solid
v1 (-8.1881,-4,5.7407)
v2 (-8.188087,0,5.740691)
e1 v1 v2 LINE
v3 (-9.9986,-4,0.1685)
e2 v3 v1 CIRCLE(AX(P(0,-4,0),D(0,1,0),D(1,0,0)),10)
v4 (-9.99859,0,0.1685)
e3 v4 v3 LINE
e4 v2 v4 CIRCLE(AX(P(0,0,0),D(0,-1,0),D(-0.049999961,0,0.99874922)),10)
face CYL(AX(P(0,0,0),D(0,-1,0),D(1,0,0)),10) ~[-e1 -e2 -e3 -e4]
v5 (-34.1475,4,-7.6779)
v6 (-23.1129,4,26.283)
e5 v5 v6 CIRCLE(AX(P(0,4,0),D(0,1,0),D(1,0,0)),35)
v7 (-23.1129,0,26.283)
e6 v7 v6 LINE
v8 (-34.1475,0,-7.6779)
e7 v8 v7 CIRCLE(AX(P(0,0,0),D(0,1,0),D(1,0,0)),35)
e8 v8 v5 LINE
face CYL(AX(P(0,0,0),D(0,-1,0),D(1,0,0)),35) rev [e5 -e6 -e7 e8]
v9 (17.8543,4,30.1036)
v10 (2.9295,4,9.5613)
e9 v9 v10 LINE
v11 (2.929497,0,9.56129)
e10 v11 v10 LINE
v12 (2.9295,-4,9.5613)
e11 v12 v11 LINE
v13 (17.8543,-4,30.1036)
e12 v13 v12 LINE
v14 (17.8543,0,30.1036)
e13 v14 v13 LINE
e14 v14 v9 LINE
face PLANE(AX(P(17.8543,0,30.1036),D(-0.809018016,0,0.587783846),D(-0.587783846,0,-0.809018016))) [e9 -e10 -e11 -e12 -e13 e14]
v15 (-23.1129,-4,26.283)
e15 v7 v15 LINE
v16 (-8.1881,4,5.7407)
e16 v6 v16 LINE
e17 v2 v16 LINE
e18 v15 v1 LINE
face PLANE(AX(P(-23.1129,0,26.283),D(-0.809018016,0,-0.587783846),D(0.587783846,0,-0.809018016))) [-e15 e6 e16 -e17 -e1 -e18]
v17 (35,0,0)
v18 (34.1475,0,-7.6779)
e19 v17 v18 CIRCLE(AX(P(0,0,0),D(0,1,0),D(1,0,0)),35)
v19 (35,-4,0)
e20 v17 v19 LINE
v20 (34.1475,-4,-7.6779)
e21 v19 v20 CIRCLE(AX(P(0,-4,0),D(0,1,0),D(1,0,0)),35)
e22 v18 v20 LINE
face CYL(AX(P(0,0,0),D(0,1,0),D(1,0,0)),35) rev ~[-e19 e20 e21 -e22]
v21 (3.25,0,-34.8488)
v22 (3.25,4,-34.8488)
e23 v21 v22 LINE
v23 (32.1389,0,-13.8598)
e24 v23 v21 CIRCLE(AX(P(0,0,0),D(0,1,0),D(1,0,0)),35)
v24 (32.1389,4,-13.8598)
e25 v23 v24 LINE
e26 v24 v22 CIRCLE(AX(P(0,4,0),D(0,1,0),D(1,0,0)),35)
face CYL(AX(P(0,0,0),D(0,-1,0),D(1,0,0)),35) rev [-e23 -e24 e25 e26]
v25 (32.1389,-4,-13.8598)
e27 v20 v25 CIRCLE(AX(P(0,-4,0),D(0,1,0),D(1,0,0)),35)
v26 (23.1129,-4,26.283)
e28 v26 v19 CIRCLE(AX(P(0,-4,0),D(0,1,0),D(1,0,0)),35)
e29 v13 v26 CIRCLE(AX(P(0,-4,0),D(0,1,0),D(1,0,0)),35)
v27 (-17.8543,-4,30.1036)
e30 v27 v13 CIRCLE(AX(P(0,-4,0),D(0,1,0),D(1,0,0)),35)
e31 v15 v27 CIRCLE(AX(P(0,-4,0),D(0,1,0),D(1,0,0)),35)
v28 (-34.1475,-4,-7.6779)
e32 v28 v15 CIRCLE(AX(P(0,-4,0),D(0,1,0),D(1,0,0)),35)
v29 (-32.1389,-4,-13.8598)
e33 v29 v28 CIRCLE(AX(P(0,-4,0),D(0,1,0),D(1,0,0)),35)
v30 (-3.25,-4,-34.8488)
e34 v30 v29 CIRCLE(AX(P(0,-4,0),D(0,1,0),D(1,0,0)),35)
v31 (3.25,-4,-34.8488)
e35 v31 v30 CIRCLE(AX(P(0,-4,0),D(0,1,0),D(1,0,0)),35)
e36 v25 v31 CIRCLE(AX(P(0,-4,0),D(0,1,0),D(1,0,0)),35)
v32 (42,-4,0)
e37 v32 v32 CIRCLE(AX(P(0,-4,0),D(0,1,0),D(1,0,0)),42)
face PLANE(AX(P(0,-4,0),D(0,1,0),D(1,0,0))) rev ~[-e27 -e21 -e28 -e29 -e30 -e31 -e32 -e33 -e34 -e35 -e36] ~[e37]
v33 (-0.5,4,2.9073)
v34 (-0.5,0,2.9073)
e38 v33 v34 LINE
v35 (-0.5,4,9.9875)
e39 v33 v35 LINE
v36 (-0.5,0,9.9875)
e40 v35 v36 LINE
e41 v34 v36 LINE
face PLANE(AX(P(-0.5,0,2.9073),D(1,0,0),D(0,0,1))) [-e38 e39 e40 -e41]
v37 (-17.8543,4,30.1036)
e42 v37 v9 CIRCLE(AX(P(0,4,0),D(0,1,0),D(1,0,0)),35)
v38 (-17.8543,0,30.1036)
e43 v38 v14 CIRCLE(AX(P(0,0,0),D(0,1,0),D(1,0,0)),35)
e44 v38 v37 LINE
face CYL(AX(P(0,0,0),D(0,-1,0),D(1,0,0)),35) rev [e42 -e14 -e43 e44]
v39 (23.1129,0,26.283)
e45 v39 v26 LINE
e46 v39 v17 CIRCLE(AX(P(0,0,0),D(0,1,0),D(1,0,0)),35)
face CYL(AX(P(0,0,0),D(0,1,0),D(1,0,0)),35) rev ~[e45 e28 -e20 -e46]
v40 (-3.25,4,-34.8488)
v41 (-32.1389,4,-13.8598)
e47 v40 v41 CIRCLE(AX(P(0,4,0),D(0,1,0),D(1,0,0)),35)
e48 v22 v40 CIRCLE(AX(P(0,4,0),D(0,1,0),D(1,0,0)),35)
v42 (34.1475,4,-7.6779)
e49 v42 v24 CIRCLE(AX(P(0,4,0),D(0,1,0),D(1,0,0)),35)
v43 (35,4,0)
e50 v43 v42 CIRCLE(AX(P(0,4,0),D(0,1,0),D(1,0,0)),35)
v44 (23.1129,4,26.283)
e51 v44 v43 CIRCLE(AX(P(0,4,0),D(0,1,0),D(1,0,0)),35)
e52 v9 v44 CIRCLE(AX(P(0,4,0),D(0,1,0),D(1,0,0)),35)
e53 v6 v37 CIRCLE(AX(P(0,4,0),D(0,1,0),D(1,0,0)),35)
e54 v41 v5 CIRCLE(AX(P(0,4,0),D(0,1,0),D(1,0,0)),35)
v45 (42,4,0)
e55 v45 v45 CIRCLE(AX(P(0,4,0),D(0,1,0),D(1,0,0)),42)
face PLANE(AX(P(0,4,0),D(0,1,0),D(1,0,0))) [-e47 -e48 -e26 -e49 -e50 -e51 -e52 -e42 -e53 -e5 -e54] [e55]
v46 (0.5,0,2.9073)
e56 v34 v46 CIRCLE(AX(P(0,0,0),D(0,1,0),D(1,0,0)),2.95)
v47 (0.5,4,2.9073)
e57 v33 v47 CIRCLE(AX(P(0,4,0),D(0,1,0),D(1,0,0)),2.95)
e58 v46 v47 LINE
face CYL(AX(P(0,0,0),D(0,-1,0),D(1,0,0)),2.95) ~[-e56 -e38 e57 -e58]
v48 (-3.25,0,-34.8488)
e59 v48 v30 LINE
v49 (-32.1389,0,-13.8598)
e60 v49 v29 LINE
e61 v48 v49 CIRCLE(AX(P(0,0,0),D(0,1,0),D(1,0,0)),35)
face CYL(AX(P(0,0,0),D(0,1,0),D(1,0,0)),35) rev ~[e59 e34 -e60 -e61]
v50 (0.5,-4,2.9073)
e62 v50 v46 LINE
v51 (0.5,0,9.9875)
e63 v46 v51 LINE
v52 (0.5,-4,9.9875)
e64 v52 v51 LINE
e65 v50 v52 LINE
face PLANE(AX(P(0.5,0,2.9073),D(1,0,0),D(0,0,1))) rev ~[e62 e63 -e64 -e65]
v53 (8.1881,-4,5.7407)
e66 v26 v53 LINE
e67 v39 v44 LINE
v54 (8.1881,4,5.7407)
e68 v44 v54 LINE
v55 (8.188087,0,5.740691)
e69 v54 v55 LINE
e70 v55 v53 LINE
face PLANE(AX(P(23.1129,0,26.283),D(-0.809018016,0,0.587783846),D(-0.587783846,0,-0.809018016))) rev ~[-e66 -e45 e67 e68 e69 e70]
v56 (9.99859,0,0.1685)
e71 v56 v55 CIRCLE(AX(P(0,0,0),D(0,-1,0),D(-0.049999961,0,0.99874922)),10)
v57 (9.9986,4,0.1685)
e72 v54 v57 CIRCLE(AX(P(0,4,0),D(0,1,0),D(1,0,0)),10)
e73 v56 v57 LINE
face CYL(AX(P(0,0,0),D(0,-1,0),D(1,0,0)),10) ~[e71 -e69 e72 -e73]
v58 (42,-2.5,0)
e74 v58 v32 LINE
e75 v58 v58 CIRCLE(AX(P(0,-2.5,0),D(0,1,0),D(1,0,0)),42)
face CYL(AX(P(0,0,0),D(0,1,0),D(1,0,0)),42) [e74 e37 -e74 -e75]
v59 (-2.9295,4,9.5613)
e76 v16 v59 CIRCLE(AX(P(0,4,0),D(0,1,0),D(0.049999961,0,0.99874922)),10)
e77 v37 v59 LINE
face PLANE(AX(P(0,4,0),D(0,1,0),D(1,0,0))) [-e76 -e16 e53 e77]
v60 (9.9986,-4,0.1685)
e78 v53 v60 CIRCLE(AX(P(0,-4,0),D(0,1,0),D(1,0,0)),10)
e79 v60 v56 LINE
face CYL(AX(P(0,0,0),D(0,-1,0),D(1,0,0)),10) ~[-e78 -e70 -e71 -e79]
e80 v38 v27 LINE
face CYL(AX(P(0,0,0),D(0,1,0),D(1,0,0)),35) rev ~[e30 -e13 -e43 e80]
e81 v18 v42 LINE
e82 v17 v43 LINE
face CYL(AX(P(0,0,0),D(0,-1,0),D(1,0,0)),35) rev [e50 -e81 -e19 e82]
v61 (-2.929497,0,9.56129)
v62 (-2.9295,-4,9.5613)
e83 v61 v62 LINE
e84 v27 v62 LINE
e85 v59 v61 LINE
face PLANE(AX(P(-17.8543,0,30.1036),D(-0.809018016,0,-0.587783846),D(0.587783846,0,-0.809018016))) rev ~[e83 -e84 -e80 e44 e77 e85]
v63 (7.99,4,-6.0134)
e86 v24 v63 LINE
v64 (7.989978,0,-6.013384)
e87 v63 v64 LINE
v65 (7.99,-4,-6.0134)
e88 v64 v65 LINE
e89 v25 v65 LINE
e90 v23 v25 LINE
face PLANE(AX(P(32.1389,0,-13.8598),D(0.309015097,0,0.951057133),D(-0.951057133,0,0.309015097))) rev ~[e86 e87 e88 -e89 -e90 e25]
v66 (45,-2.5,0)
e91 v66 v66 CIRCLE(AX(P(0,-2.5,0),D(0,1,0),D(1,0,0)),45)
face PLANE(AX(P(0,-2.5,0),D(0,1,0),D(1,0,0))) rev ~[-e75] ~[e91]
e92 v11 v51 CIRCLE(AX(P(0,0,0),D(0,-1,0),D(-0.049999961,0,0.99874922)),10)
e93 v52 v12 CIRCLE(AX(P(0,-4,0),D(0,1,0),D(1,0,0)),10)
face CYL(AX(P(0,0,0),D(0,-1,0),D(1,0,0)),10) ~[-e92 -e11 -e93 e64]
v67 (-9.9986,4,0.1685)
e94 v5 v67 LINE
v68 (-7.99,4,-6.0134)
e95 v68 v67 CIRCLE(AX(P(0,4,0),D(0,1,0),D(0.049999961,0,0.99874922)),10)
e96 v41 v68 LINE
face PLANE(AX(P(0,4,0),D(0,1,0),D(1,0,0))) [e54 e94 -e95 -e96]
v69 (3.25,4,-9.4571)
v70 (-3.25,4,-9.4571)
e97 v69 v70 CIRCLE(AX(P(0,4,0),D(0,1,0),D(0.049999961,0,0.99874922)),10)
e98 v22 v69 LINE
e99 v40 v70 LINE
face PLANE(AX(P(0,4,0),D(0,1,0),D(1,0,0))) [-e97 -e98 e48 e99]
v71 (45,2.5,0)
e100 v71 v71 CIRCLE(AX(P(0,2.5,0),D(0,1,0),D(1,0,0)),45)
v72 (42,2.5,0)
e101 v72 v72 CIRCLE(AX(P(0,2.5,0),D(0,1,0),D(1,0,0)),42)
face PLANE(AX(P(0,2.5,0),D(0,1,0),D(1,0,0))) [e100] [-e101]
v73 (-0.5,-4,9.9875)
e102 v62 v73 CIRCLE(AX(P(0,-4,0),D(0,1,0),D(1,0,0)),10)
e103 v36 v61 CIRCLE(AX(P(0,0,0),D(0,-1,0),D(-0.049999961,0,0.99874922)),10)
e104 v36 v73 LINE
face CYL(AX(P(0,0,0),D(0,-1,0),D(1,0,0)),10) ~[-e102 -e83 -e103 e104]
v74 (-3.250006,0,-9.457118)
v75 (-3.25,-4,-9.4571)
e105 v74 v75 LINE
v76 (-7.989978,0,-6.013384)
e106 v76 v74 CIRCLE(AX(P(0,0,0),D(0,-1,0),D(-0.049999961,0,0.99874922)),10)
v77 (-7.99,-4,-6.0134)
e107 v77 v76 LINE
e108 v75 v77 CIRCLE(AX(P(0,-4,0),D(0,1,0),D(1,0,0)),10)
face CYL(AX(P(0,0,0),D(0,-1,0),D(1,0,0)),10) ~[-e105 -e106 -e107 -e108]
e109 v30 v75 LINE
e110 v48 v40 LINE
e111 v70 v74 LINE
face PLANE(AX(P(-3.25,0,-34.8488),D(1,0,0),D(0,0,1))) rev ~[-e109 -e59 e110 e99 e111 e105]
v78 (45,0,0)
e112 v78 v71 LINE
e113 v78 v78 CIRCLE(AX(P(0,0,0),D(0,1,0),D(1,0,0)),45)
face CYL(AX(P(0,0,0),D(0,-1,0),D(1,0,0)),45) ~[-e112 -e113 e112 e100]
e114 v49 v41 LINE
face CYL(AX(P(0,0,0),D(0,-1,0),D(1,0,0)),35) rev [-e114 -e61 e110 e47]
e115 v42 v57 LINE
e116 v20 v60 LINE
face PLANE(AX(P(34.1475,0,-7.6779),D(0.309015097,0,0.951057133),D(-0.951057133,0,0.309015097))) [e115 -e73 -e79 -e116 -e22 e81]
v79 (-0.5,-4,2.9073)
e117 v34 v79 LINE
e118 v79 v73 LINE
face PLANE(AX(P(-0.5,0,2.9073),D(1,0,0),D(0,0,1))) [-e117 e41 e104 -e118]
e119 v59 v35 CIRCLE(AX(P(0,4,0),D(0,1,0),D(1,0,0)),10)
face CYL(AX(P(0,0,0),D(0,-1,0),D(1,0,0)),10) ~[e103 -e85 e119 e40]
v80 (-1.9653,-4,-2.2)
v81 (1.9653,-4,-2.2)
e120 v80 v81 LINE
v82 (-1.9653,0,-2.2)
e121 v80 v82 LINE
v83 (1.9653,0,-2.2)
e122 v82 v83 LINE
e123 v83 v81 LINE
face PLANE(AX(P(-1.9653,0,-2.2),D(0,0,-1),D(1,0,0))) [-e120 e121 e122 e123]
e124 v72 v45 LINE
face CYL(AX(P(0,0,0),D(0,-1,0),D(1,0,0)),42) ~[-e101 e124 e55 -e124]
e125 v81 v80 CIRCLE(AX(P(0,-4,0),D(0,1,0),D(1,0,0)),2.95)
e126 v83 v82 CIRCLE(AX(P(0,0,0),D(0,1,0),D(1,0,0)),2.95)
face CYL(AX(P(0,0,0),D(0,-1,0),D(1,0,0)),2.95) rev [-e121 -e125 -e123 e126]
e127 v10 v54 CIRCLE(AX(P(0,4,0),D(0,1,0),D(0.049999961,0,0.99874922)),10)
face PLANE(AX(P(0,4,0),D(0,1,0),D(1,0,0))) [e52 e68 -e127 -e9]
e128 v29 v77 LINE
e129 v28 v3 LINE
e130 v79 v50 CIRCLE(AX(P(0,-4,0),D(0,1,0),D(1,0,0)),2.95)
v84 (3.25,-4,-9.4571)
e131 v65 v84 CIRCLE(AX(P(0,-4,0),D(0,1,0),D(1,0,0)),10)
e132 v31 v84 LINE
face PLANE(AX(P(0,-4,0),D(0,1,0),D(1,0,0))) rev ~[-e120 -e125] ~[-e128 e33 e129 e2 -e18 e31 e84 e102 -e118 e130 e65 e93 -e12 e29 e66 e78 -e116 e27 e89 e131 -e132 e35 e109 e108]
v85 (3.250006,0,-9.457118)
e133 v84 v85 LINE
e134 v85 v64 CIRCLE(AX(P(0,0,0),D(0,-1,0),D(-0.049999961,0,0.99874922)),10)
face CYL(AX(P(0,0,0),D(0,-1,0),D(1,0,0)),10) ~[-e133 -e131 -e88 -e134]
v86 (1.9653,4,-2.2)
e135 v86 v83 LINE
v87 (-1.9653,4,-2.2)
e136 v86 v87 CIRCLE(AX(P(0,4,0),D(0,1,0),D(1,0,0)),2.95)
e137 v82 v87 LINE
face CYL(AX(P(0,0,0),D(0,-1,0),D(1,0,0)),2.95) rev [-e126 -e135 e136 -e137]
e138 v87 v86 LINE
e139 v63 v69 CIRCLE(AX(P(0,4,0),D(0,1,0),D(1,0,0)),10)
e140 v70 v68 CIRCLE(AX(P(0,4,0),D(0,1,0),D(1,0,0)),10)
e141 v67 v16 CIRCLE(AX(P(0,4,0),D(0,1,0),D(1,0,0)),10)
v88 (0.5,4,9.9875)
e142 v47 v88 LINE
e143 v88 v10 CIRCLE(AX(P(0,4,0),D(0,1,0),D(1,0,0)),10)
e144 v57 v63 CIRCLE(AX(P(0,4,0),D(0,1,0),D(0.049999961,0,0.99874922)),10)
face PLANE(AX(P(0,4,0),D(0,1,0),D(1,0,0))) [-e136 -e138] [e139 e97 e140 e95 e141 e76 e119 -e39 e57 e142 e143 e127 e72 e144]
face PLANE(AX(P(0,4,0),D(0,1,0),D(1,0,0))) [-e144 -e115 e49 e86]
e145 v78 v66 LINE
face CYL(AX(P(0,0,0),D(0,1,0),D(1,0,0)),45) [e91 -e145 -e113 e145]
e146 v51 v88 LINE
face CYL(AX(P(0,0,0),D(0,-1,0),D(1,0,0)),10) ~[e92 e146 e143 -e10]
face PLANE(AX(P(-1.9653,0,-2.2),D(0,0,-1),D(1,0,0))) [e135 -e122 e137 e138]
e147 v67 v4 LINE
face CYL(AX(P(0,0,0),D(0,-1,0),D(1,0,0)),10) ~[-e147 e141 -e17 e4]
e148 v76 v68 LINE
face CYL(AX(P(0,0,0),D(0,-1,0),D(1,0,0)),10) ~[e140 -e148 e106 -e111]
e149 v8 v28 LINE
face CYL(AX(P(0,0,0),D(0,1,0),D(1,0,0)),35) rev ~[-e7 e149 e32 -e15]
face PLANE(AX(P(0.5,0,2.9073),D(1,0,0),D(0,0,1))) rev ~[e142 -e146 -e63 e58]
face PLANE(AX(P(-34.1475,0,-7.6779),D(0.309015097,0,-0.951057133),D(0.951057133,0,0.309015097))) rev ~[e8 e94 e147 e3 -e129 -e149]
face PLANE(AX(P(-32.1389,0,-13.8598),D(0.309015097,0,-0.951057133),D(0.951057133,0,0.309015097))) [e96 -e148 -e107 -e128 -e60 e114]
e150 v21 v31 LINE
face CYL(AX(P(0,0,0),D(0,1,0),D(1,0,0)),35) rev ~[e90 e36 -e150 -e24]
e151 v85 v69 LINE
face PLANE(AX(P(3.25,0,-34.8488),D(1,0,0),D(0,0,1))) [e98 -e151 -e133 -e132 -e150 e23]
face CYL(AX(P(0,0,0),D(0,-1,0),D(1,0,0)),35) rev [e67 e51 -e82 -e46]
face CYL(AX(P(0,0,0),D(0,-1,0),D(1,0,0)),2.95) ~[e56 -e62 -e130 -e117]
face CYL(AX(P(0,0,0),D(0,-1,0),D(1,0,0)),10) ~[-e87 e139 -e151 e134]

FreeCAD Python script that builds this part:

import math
import FreeCAD as App
import Part
import Sketcher

V = App.Vector
Q = App.Units.Quantity

doc = App.newDocument("Part")
body = doc.addObject("PartDesign::Body", "Body")

# Sketch on XZ plane
sketch1 = body.newObject("Sketcher::SketchObject", "Sketch")
sketch1.AttachmentSupport = (doc.getObject("XZ_Plane"), [""])
sketch1.MapMode = "FlatFace"
sketch1.addGeometry([
    Part.Circle(V(0, 0, 0), V(0, 0, 1), 45),
    Part.Circle(V(0, 0, 0), V(0, 0, 1), 42),
], False)
sketch1.addConstraint([
    Sketcher.Constraint("Coincident", 0, 3, -1, 1),
    Sketcher.Constraint("Coincident", 1, 3, -1, 1),
    Sketcher.Constraint("Diameter", 0, Q("90 mm")),
    Sketcher.Constraint("Diameter", 1, Q("84 mm")),
])
pad1 = body.newObject("PartDesign::Pad", "Pad")
pad1.Profile = sketch1
pad1.Length = 5
pad1.Midplane = True

# Sketch on XZ plane
sketch2 = body.newObject("Sketcher::SketchObject", "Sketch001")
sketch2.AttachmentSupport = (doc.getObject("XZ_Plane"), [""])
sketch2.MapMode = "FlatFace"
sketch2.addGeometry([
    Part.Circle(V(0, 0, 0), V(0, 0, 1), 42),
    Part.Circle(V(0, 0, 0), V(0, 0, 1), 35),
], False)
sketch2.addConstraint([
    Sketcher.Constraint("Coincident", 0, 3, -1, 1),
    Sketcher.Constraint("Coincident", 1, 3, -1, 1),
    Sketcher.Constraint("Diameter", 0, Q("84 mm")),
    Sketcher.Constraint("Diameter", 1, Q("70 mm")),
])
pad2 = body.newObject("PartDesign::Pad", "Pad001")
pad2.Profile = sketch2
pad2.Length = 8
pad2.Midplane = True

# Sketch on XZ plane
sketch3 = body.newObject("Sketcher::SketchObject", "Sketch002")
sketch3.AttachmentSupport = (doc.getObject("XZ_Plane"), [""])
sketch3.MapMode = "FlatFace"
sketch3.addGeometry([
    Part.ArcOfCircle(Part.Circle(V(0, 0, 0), V(0, 0, 1), 3), math.radians(80.24), math.radians(99.76)),  # 0
    Part.LineSegment(V(0.5, 2.9, 0), V(0.5, 10, 0)),  # 1
    Part.ArcOfCircle(Part.Circle(V(0, 0, 0), V(0, 0, 1), 10), math.radians(72.97), math.radians(87.13)),  # 2
    Part.LineSegment(V(2.9, 9.6, 0), V(17.9, 30.1, 0)),  # 3
    Part.ArcOfCircle(Part.Circle(V(0, 0, 0), V(0, 0, 1), 35), math.radians(48.67), math.radians(59.33)),  # 4
    Part.LineSegment(V(23.1, 26.3, 0), V(8.2, 5.7, 0)),  # 5
    Part.ArcOfCircle(Part.Circle(V(0, 0, 0), V(0, 0, 1), 10), math.radians(1), math.radians(35)),  # 6
    Part.LineSegment(V(10, 0.2, 0), V(34.1, -7.7, 0)),  # 7
    Part.ArcOfCircle(Part.Circle(V(0, 0, 0), V(0, 0, 1), 35), math.radians(-23.33), math.radians(-12.67)),  # 8
    Part.LineSegment(V(32.1, -13.9, 0), V(8, -6, 0)),  # 9
    Part.ArcOfCircle(Part.Circle(V(0, 0, 0), V(0, 0, 1), 10), math.radians(-71), math.radians(-37)),  # 10
    Part.LineSegment(V(3.2, -9.5, 0), V(3.2, -34.8, 0)),  # 11
    Part.ArcOfCircle(Part.Circle(V(0, 0, 0), V(0, 0, 1), 35), math.radians(-95.33), math.radians(-84.67)),  # 12
    Part.LineSegment(V(-3.2, -34.8, 0), V(-3.2, -9.5, 0)),  # 13
    Part.ArcOfCircle(Part.Circle(V(0, 0, 0), V(0, 0, 1), 10), math.radians(-143), math.radians(-109)),  # 14
    Part.LineSegment(V(-8, -6, 0), V(-32.1, -13.9, 0)),  # 15
    Part.ArcOfCircle(Part.Circle(V(0, 0, 0), V(0, 0, 1), 35), math.radians(-167.33), math.radians(-156.67)),  # 16
    Part.LineSegment(V(-34.1, -7.7, 0), V(-10, 0.2, 0)),  # 17
    Part.ArcOfCircle(Part.Circle(V(0, 0, 0), V(0, 0, 1), 10), math.radians(145), math.radians(179)),  # 18
    Part.LineSegment(V(-8.2, 5.7, 0), V(-23.1, 26.3, 0)),  # 19
    Part.ArcOfCircle(Part.Circle(V(0, 0, 0), V(0, 0, 1), 35), math.radians(120.67), math.radians(131.33)),  # 20
    Part.LineSegment(V(-17.9, 30.1, 0), V(-2.9, 9.6, 0)),  # 21
    Part.ArcOfCircle(Part.Circle(V(0, 0, 0), V(0, 0, 1), 10), math.radians(92.87), math.radians(107.03)),  # 22
    Part.LineSegment(V(-0.5, 10, 0), V(-0.5, 2.9, 0)),  # 23
    Part.LineSegment(V(2, -2.2, 0), V(-2, -2.2, 0)),  # 24
    Part.ArcOfCircle(Part.Circle(V(0, 0, 0), V(0, 0, 1), 3), math.radians(-132), math.radians(-48)),  # 25
], False)
sketch3.addConstraint([
    Sketcher.Constraint("Coincident", 0, 1, 1, 1),
    Sketcher.Constraint("Coincident", 1, 2, 2, 2),
    Sketcher.Constraint("Coincident", 2, 1, 3, 1),
    Sketcher.Constraint("Coincident", 3, 2, 4, 2),
    Sketcher.Constraint("Coincident", 4, 1, 5, 1),
    Sketcher.Constraint("Coincident", 5, 2, 6, 2),
    Sketcher.Constraint("Coincident", 6, 1, 7, 1),
    Sketcher.Constraint("Coincident", 7, 2, 8, 2),
    Sketcher.Constraint("Coincident", 8, 1, 9, 1),
    Sketcher.Constraint("Coincident", 9, 2, 10, 2),
    Sketcher.Constraint("Coincident", 10, 1, 11, 1),
    Sketcher.Constraint("Coincident", 11, 2, 12, 2),
    Sketcher.Constraint("Coincident", 12, 1, 13, 1),
    Sketcher.Constraint("Coincident", 13, 2, 14, 2),
    Sketcher.Constraint("Coincident", 14, 1, 15, 1),
    Sketcher.Constraint("Coincident", 15, 2, 16, 2),
    Sketcher.Constraint("Coincident", 16, 1, 17, 1),
    Sketcher.Constraint("Coincident", 17, 2, 18, 2),
    Sketcher.Constraint("Coincident", 18, 1, 19, 1),
    Sketcher.Constraint("Coincident", 19, 2, 20, 2),
    Sketcher.Constraint("Coincident", 20, 1, 21, 1),
    Sketcher.Constraint("Coincident", 21, 2, 22, 2),
    Sketcher.Constraint("Coincident", 22, 1, 23, 1),
    Sketcher.Constraint("Coincident", 23, 2, 0, 2),
    Sketcher.Constraint("Coincident", 24, 1, 25, 2),
    Sketcher.Constraint("Coincident", 25, 1, 24, 2),
    Sketcher.Constraint("Vertical", 1),
    Sketcher.Constraint("Vertical", 11),
    Sketcher.Constraint("Vertical", 13),
    Sketcher.Constraint("Vertical", 23),
    Sketcher.Constraint("Horizontal", 24),
    Sketcher.Constraint("Coincident", 0, 3, -1, 1),
    Sketcher.Constraint("Coincident", 2, 3, -1, 1),
    Sketcher.Constraint("Coincident", 4, 3, -1, 1),
    Sketcher.Constraint("Coincident", 6, 3, -1, 1),
    Sketcher.Constraint("Coincident", 8, 3, -1, 1),
    Sketcher.Constraint("Coincident", 10, 3, -1, 1),
    Sketcher.Constraint("Coincident", 12, 3, -1, 1),
    Sketcher.Constraint("Coincident", 14, 3, -1, 1),
    Sketcher.Constraint("Coincident", 16, 3, -1, 1),
    Sketcher.Constraint("Coincident", 18, 3, -1, 1),
    Sketcher.Constraint("Coincident", 20, 3, -1, 1),
    Sketcher.Constraint("Coincident", 22, 3, -1, 1),
    Sketcher.Constraint("Coincident", 25, 3, -1, 1),
    Sketcher.Constraint("Equal", 2, 6),
    Sketcher.Constraint("Equal", 4, 8),
    Sketcher.Constraint("Equal", 6, 10),
    Sketcher.Constraint("Equal", 8, 12),
    Sketcher.Constraint("Equal", 10, 14),
    Sketcher.Constraint("Equal", 12, 16),
    Sketcher.Constraint("Equal", 14, 18),
    Sketcher.Constraint("Equal", 16, 20),
    Sketcher.Constraint("Equal", 18, 22),
    Sketcher.Constraint("Equal", 0, 25),
    Sketcher.Constraint("Parallel", 3, 5),
    Sketcher.Constraint("Parallel", 7, 9),
    Sketcher.Constraint("Parallel", 15, 17),
    Sketcher.Constraint("Parallel", 19, 21),
    Sketcher.Constraint("Horizontal", 11, 2, 12, 1),
    Sketcher.Constraint("Horizontal", 9, 2, 14, 1),
    Sketcher.Constraint("Horizontal", 8, 1, 15, 2),
    Sketcher.Constraint("Horizontal", 7, 2, 16, 1),
    Sketcher.Constraint("Horizontal", 5, 2, 18, 1),
    Sketcher.Constraint("Horizontal", 4, 1, 19, 2),
    Sketcher.Constraint("Horizontal", 3, 2, 20, 1),
    Sketcher.Constraint("Horizontal", 1, 2, 22, 1),
    Sketcher.Constraint("Equal", 3, 5),
    Sketcher.Constraint("Equal", 5, 7),
    Sketcher.Constraint("Equal", 7, 9),
    Sketcher.Constraint("Radius", 2, Q("10 mm")),
    Sketcher.Constraint("Radius", 4, Q("35 mm")),
    Sketcher.Constraint("Radius", 0, Q("2.95 mm")),
    Sketcher.Constraint("DistanceX", 22, 1, 1, 2, Q("1 mm")),
    Sketcher.Constraint("DistanceY", 24, 1, -1, 1, Q("2.2 mm")),
    Sketcher.Constraint("DistanceX", 12, 1, 11, 2, Q("6.5 mm")),
    Sketcher.Constraint("Angle", 3, Q("54 deg")),
    Sketcher.Constraint("Angle", 7, Q("-18 deg")),
    Sketcher.Constraint("Distance", 3, Q("25.3916 mm")),
])
pad3 = body.newObject("PartDesign::Pad", "Pad002")
pad3.Profile = sketch3
pad3.Length = 8
pad3.Midplane = True

# Sketch on XZ plane
sketch4 = body.newObject("Sketcher::SketchObject", "Sketch003")
sketch4.AttachmentSupport = (doc.getObject("XZ_Plane"), [""])
sketch4.MapMode = "FlatFace"
sketch4.addGeometry([
    Part.ArcOfCircle(Part.Circle(V(0, 0, 0), V(0, 0, 1), 3), math.radians(80.24), math.radians(99.76)),  # 0
    Part.LineSegment(V(0.5, 2.9, 0), V(0.5, 10, 0)),  # 1
    Part.ArcOfCircle(Part.Circle(V(0, 0, 0), V(0, 0, 1), 10), math.radians(93), math.radians(447)),  # 2
    Part.LineSegment(V(-0.5, 10, 0), V(-0.5, 2.9, 0)),  # 3
    Part.LineSegment(V(2, -2.2, 0), V(-2, -2.2, 0)),  # 4
    Part.ArcOfCircle(Part.Circle(V(0, 0, 0), V(0, 0, 1), 3), math.radians(-132), math.radians(-48)),  # 5
], False)
sketch4.addConstraint([
    Sketcher.Constraint("Coincident", 0, 1, 1, 1),
    Sketcher.Constraint("Coincident", 1, 2, 2, 2),
    Sketcher.Constraint("Coincident", 2, 1, 3, 1),
    Sketcher.Constraint("Coincident", 3, 2, 0, 2),
    Sketcher.Constraint("Coincident", 4, 1, 5, 2),
    Sketcher.Constraint("Coincident", 5, 1, 4, 2),
    Sketcher.Constraint("Vertical", 1),
    Sketcher.Constraint("Vertical", 3),
    Sketcher.Constraint("Horizontal", 4),
    Sketcher.Constraint("Coincident", 0, 3, -1, 1),
    Sketcher.Constraint("Coincident", 2, 3, -1, 1),
    Sketcher.Constraint("Coincident", 5, 3, -1, 1),
    Sketcher.Constraint("Equal", 0, 5),
    Sketcher.Constraint("Horizontal", 1, 2, 2, 1),
    Sketcher.Constraint("Radius", 2, Q("10 mm")),
    Sketcher.Constraint("Radius", 0, Q("2.95 mm")),
    Sketcher.Constraint("DistanceX", 2, 1, 1, 2, Q("1 mm")),
    Sketcher.Constraint("DistanceY", 4, 1, -1, 1, Q("2.2 mm")),
])
pad4 = body.newObject("PartDesign::Pad", "Pad003")
pad4.Profile = sketch4
pad4.Length = 4
pad4.Reversed = True

doc.recompute()
